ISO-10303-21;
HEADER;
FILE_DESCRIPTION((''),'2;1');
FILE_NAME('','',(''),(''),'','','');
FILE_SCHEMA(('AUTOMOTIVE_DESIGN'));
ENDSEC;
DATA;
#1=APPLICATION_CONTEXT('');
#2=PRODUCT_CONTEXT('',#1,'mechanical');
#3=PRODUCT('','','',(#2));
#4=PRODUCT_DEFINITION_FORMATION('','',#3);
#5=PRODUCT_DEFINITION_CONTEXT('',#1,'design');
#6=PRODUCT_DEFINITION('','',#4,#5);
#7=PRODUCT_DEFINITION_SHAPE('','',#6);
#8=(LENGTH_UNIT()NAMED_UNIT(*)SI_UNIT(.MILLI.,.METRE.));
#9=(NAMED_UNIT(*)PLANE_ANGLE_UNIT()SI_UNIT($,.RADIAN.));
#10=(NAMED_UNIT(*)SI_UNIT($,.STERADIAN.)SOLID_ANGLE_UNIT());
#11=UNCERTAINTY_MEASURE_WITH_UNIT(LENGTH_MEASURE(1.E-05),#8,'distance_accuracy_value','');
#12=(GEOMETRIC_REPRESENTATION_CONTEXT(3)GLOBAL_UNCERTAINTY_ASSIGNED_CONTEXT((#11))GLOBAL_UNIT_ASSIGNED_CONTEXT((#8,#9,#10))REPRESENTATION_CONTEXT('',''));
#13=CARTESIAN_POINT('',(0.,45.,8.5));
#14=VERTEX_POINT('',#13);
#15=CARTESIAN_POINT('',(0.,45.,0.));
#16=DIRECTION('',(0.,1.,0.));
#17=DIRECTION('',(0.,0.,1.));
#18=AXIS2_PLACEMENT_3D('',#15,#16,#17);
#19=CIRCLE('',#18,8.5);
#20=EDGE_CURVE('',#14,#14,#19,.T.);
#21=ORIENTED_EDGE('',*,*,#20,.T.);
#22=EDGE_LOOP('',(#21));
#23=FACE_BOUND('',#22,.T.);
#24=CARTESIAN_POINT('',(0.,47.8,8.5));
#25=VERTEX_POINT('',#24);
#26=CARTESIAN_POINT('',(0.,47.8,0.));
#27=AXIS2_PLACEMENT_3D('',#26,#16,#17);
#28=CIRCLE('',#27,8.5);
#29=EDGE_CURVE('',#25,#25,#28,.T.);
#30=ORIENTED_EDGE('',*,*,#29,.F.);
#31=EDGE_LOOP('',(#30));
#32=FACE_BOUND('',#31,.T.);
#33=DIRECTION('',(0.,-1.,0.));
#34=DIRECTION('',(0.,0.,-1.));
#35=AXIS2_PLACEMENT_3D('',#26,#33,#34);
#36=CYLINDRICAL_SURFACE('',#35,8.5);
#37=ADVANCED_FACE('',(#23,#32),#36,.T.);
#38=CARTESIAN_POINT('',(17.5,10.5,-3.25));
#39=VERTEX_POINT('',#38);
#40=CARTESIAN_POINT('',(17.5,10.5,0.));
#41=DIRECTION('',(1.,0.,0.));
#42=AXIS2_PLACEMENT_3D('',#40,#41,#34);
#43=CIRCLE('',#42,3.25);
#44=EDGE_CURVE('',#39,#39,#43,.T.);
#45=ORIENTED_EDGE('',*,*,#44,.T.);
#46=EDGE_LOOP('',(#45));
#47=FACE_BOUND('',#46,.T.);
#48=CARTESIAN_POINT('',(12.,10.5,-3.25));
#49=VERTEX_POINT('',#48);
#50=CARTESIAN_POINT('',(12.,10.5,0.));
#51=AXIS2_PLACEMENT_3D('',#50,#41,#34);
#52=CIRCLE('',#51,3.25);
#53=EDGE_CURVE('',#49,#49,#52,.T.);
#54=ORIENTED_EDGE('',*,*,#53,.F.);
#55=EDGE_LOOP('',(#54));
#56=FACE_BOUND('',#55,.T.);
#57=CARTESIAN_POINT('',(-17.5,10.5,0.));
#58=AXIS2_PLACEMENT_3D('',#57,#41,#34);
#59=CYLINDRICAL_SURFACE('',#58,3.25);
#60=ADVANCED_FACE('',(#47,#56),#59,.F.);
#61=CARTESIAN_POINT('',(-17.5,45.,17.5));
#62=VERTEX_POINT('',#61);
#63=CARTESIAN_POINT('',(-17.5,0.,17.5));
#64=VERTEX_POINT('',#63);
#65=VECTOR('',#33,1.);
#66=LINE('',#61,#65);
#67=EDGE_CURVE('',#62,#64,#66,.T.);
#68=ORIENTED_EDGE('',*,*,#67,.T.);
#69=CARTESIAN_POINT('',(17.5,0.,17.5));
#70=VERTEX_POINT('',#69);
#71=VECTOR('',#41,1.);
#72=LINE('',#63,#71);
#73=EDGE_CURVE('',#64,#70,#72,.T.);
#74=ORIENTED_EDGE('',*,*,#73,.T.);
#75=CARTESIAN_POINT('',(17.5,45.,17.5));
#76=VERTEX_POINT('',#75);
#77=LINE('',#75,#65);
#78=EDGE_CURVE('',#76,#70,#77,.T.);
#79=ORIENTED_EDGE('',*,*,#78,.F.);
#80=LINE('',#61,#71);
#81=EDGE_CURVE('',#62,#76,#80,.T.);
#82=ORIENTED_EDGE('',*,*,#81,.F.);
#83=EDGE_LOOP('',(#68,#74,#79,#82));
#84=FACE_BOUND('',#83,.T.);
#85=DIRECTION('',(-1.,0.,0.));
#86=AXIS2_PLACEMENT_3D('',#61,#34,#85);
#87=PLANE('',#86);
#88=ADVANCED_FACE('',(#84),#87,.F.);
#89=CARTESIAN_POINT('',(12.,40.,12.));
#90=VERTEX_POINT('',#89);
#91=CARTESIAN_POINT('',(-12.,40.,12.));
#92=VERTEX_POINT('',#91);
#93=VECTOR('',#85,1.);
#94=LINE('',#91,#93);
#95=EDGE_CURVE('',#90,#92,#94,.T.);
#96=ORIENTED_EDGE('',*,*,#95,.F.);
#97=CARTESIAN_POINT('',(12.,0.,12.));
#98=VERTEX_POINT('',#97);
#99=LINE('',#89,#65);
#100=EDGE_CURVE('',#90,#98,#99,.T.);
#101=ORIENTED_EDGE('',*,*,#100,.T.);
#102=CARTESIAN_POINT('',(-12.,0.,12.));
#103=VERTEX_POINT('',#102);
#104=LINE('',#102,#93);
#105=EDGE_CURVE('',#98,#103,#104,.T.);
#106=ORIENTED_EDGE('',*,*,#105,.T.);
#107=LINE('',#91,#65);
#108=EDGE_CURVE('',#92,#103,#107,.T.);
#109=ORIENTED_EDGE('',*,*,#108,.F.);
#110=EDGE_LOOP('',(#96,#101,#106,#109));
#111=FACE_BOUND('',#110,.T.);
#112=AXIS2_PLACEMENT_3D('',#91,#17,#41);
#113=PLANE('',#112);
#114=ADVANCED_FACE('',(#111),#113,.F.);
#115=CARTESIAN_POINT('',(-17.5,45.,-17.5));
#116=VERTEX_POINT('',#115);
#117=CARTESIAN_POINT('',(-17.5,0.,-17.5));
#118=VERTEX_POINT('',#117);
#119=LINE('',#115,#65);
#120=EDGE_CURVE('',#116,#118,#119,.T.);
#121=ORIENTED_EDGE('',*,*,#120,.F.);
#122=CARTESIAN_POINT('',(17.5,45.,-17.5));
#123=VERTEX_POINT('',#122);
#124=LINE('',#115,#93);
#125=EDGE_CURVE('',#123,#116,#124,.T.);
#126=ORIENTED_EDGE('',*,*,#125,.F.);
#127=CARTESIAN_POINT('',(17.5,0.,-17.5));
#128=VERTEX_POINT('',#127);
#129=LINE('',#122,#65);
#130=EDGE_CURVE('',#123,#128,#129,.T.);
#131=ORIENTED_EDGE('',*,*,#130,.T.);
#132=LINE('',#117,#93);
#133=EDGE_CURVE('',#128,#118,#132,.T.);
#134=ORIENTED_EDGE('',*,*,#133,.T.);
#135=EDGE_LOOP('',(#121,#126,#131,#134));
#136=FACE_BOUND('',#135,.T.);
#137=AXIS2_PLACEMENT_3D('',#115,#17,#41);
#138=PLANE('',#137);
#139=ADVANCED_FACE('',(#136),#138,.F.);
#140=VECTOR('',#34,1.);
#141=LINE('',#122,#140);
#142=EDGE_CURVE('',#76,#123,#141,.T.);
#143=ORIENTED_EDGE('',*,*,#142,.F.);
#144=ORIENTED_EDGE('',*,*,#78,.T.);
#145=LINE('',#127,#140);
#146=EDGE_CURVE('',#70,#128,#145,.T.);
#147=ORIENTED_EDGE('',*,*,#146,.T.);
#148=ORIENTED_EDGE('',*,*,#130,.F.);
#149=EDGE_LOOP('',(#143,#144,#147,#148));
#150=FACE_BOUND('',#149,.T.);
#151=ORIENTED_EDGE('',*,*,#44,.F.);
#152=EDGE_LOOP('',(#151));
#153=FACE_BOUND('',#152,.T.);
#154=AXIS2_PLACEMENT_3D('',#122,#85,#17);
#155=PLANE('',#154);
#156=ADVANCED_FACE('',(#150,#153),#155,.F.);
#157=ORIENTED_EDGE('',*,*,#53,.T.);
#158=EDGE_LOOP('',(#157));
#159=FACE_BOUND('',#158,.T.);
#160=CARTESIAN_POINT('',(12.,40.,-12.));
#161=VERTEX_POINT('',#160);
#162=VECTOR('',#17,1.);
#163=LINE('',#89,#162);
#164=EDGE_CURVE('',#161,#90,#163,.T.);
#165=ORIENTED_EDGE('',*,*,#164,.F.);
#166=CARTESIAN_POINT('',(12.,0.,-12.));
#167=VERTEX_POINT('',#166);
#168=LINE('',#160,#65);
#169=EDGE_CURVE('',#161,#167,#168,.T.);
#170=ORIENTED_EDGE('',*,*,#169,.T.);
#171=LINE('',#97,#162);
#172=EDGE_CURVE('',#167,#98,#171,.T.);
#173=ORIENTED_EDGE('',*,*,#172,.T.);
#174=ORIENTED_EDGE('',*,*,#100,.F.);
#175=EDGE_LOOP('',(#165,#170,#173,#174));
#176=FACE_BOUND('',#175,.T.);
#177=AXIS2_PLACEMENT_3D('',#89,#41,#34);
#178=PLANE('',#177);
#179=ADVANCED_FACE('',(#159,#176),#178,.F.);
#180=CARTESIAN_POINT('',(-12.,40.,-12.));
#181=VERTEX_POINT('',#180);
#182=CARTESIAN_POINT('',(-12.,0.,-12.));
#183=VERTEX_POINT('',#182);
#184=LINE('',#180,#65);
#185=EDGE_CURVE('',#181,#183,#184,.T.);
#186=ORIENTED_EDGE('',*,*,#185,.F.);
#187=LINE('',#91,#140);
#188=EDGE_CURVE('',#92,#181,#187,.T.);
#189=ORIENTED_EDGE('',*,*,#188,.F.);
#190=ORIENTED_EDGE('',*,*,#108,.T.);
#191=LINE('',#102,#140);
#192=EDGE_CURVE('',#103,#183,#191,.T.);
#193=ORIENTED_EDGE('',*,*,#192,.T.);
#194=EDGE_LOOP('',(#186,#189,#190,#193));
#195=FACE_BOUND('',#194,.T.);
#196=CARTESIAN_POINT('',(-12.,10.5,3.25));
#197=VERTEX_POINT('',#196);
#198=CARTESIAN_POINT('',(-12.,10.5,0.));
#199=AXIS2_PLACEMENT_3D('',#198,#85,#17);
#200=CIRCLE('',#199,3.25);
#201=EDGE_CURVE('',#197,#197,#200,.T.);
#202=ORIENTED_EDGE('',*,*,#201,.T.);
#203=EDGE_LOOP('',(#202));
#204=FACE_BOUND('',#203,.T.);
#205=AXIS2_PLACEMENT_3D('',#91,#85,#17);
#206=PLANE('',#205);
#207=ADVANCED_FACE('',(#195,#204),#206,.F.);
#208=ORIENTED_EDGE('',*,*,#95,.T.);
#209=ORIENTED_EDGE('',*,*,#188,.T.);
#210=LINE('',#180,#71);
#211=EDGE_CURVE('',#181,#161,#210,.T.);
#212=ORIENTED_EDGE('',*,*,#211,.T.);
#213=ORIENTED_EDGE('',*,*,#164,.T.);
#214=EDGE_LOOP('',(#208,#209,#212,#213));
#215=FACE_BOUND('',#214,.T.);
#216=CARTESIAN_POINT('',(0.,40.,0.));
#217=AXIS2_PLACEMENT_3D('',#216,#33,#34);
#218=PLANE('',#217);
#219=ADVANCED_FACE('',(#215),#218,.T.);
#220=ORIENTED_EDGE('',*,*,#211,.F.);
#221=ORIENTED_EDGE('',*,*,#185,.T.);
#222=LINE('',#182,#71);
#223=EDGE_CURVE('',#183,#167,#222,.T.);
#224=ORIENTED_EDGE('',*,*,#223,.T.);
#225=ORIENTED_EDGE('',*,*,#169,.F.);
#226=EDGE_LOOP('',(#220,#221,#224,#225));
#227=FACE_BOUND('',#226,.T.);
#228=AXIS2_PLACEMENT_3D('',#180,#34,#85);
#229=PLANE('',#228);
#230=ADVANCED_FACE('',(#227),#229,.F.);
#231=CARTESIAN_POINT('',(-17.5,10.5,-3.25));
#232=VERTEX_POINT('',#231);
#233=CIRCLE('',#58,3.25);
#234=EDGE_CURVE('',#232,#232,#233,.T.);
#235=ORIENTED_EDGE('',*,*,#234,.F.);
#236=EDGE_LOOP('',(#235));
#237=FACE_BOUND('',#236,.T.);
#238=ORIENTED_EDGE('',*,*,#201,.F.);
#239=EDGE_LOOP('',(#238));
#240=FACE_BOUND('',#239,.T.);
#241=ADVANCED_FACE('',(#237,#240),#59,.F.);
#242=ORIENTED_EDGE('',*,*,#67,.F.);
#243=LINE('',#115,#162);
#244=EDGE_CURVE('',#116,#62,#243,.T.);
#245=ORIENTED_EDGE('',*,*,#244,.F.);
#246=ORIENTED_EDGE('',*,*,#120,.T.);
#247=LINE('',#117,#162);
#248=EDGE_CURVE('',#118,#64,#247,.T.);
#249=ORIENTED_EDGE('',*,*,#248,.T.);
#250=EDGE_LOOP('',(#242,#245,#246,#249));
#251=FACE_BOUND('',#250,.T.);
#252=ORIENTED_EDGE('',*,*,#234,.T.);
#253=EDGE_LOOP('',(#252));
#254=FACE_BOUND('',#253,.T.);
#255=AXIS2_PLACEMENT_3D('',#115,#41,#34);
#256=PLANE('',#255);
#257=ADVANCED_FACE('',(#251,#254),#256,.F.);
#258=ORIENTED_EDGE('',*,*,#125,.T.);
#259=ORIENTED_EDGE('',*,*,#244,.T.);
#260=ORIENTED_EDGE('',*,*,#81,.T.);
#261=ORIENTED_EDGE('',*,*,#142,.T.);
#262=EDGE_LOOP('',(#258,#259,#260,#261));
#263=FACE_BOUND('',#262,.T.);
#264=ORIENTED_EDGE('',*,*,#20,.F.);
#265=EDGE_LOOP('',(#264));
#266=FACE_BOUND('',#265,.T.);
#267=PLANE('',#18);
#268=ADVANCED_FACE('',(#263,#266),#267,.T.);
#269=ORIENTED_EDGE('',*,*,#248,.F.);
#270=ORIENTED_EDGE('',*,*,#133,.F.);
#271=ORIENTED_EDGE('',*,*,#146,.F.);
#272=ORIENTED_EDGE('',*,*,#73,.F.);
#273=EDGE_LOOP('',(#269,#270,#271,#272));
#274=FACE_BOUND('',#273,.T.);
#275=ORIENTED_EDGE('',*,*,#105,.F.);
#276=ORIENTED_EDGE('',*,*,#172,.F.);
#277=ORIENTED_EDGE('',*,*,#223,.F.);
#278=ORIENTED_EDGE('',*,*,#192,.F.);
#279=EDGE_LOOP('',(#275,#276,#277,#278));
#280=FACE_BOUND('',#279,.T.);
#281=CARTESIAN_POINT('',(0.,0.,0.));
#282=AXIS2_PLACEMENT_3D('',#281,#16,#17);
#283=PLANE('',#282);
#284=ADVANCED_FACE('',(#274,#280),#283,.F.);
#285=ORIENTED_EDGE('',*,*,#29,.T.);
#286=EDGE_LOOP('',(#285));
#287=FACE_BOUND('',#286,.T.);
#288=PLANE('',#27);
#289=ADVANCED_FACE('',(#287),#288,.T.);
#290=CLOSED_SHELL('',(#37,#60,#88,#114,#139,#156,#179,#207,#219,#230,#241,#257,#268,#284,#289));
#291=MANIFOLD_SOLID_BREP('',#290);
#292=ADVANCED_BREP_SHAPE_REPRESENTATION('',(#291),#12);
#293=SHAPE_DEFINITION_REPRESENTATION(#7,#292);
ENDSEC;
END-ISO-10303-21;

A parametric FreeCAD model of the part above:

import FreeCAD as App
import Part
import Sketcher
from FreeCAD import Vector
Q = App.Units.Quantity

doc = App.newDocument("Part")
body = doc.addObject("PartDesign::Body", "Body")

# Sketch on XZ plane
sketch1 = body.newObject("Sketcher::SketchObject", "Sketch")
sketch1.AttachmentSupport = (doc.getObject("XZ_Plane"), [""])
sketch1.MapMode = "FlatFace"
sketch1.addGeometry(Part.LineSegment(Vector(-17.5, -17.5, 0), Vector(-17.5, 17.5, 0)), False)
sketch1.addGeometry(Part.LineSegment(Vector(-17.5, 17.5, 0), Vector(17.5, 17.5, 0)), False)
sketch1.addGeometry(Part.LineSegment(Vector(17.5, 17.5, 0), Vector(17.5, -17.5, 0)), False)
sketch1.addGeometry(Part.LineSegment(Vector(17.5, -17.5, 0), Vector(-17.5, -17.5, 0)), False)
sketch1.addConstraint(Sketcher.Constraint("Coincident", 0, 2, 1, 1))
sketch1.addConstraint(Sketcher.Constraint("Coincident", 1, 2, 2, 1))
sketch1.addConstraint(Sketcher.Constraint("Coincident", 2, 2, 3, 1))
sketch1.addConstraint(Sketcher.Constraint("Coincident", 3, 2, 0, 1))
sketch1.addConstraint(Sketcher.Constraint("Vertical", 0))
sketch1.addConstraint(Sketcher.Constraint("Horizontal", 1))
sketch1.addConstraint(Sketcher.Constraint("Vertical", 2))
sketch1.addConstraint(Sketcher.Constraint("Horizontal", 3))
sketch1.addConstraint(Sketcher.Constraint("Symmetric", 0, 2, 2, 2, -1, 1))
sketch1.addConstraint(Sketcher.Constraint("Equal", 3, 0))
sketch1.addConstraint(Sketcher.Constraint("DistanceX", 1, 1, 1, 2, Q("35 mm")))
pad1 = body.newObject("PartDesign::Pad", "Pad")
pad1.Profile = sketch1
pad1.Length = 45
pad1.Reversed = True

# Sketch on XZ plane
sketch2 = body.newObject("Sketcher::SketchObject", "Sketch001")
sketch2.AttachmentSupport = (doc.getObject("XZ_Plane"), [""])
sketch2.MapMode = "FlatFace"
sketch2.AttachmentOffset = App.Placement(Vector(0, 0, -45), App.Rotation())
sketch2.addGeometry(Part.Circle(Vector(0, 0, 0), Vector(0, 0, 1), 8.5), False)
sketch2.addConstraint(Sketcher.Constraint("Coincident", 0, 3, -1, 1))
sketch2.addConstraint(Sketcher.Constraint("Diameter", 0, Q("17 mm")))
pad2 = body.newObject("PartDesign::Pad", "Pad001")
pad2.Profile = sketch2
pad2.Length = 2.8
pad2.Reversed = True

# Sketch on XZ plane
sketch3 = body.newObject("Sketcher::SketchObject", "Sketch002")
sketch3.AttachmentSupport = (doc.getObject("XZ_Plane"), [""])
sketch3.MapMode = "FlatFace"
sketch3.addGeometry(Part.LineSegment(Vector(-12, 12, 0), Vector(-12, -12, 0)), False)
sketch3.addGeometry(Part.LineSegment(Vector(-12, -12, 0), Vector(12, -12, 0)), False)
sketch3.addGeometry(Part.LineSegment(Vector(12, -12, 0), Vector(12, 12, 0)), False)
sketch3.addGeometry(Part.LineSegment(Vector(12, 12, 0), Vector(-12, 12, 0)), False)
sketch3.addConstraint(Sketcher.Constraint("Coincident", 0, 2, 1, 1))
sketch3.addConstraint(Sketcher.Constraint("Coincident", 1, 2, 2, 1))
sketch3.addConstraint(Sketcher.Constraint("Coincident", 2, 2, 3, 1))
sketch3.addConstraint(Sketcher.Constraint("Coincident", 3, 2, 0, 1))
sketch3.addConstraint(Sketcher.Constraint("Vertical", 0))
sketch3.addConstraint(Sketcher.Constraint("Horizontal", 1))
sketch3.addConstraint(Sketcher.Constraint("Vertical", 2))
sketch3.addConstraint(Sketcher.Constraint("Horizontal", 3))
sketch3.addConstraint(Sketcher.Constraint("Symmetric", 0, 2, 2, 2, -1, 1))
sketch3.addConstraint(Sketcher.Constraint("Equal", 3, 0))
sketch3.addConstraint(Sketcher.Constraint("DistanceX", 1, 1, 1, 2, Q("24 mm")))
pocket1 = body.newObject("PartDesign::Pocket", "Pocket")
pocket1.Profile = sketch3
pocket1.Length = 40

# Sketch on YZ plane
sketch4 = body.newObject("Sketcher::SketchObject", "Sketch003")
sketch4.AttachmentSupport = (doc.getObject("YZ_Plane"), [""])
sketch4.MapMode = "FlatFace"
sketch4.AttachmentOffset = App.Placement(Vector(0, 0, 17.5), App.Rotation())
sketch4.addGeometry(Part.Circle(Vector(10.5, 0, 0), Vector(0, 0, 1), 3.25), False)
sketch4.addConstraint(Sketcher.Constraint("PointOnObject", 0, 3, -1))
sketch4.addConstraint(Sketcher.Constraint("Diameter", 0, Q("6.5 mm")))
sketch4.addConstraint(Sketcher.Constraint("DistanceX", -1, 1, 0, 3, Q("10.5 mm")))
pocket2 = body.newObject("PartDesign::Pocket", "Pocket001")
pocket2.Profile = sketch4
pocket2.Type = "ThroughAll"

doc.recompute()
